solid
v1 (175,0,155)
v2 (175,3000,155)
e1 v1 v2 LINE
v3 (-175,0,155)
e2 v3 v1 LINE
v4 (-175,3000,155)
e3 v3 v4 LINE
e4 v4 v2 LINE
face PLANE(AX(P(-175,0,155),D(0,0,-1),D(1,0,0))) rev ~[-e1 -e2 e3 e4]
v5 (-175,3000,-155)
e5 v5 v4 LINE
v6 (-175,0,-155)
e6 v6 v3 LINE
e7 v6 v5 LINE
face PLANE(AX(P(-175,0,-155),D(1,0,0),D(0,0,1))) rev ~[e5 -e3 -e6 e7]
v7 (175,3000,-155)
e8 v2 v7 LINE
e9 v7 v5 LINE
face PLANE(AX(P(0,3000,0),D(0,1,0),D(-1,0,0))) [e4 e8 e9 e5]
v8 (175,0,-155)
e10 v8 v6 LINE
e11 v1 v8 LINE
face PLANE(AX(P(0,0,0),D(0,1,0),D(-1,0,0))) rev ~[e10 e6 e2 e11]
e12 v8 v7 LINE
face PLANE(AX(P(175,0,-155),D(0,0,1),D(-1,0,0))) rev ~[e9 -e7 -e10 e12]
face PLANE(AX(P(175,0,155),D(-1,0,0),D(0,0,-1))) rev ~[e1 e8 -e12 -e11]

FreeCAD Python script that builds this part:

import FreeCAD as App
import Part
import Sketcher

V = App.Vector
Q = App.Units.Quantity


def add_polygon(sketch, points):
    """Adds a closed chain of lines whose ends are joined by coincident constraints."""
    first, n = sketch.GeometryCount, len(points)
    for a, b in zip(points, points[1:] + points[:1]):
        sketch.addGeometry(Part.LineSegment(App.Vector(*a, 0), App.Vector(*b, 0)), False)
    for i in range(n):
        sketch.addConstraint(Sketcher.Constraint("Coincident", first + i, 2, first + (i + 1) % n, 1))

doc = App.newDocument("Part")
body = doc.addObject("PartDesign::Body", "Body")

sketch1 = body.newObject("Sketcher::SketchObject", "Sketch")
sketch1.AttachmentSupport = (doc.getObject("XZ_Plane"), [""])
sketch1.MapMode = "FlatFace"
add_polygon(sketch1, [(-175, -155), (-175, 155), (175, 155), (175, -155)])
sketch1.addConstraint(Sketcher.Constraint("Vertical", 0))
sketch1.addConstraint(Sketcher.Constraint("Horizontal", 1))
sketch1.addConstraint(Sketcher.Constraint("Vertical", 2))
sketch1.addConstraint(Sketcher.Constraint("Horizontal", 3))
sketch1.addConstraint(Sketcher.Constraint("Symmetric", 0, 2, 2, 2, -1, 1))
sketch1.addConstraint(Sketcher.Constraint("DistanceX", 1, 1, 1, 2, Q("350 mm")))
sketch1.addConstraint(Sketcher.Constraint("DistanceY", 0, 1, 0, 2, Q("310 mm")))
pad1 = body.newObject("PartDesign::Pad", "Pad")
pad1.Profile = sketch1
pad1.Length = 3000
pad1.Reversed = True

doc.recompute()
